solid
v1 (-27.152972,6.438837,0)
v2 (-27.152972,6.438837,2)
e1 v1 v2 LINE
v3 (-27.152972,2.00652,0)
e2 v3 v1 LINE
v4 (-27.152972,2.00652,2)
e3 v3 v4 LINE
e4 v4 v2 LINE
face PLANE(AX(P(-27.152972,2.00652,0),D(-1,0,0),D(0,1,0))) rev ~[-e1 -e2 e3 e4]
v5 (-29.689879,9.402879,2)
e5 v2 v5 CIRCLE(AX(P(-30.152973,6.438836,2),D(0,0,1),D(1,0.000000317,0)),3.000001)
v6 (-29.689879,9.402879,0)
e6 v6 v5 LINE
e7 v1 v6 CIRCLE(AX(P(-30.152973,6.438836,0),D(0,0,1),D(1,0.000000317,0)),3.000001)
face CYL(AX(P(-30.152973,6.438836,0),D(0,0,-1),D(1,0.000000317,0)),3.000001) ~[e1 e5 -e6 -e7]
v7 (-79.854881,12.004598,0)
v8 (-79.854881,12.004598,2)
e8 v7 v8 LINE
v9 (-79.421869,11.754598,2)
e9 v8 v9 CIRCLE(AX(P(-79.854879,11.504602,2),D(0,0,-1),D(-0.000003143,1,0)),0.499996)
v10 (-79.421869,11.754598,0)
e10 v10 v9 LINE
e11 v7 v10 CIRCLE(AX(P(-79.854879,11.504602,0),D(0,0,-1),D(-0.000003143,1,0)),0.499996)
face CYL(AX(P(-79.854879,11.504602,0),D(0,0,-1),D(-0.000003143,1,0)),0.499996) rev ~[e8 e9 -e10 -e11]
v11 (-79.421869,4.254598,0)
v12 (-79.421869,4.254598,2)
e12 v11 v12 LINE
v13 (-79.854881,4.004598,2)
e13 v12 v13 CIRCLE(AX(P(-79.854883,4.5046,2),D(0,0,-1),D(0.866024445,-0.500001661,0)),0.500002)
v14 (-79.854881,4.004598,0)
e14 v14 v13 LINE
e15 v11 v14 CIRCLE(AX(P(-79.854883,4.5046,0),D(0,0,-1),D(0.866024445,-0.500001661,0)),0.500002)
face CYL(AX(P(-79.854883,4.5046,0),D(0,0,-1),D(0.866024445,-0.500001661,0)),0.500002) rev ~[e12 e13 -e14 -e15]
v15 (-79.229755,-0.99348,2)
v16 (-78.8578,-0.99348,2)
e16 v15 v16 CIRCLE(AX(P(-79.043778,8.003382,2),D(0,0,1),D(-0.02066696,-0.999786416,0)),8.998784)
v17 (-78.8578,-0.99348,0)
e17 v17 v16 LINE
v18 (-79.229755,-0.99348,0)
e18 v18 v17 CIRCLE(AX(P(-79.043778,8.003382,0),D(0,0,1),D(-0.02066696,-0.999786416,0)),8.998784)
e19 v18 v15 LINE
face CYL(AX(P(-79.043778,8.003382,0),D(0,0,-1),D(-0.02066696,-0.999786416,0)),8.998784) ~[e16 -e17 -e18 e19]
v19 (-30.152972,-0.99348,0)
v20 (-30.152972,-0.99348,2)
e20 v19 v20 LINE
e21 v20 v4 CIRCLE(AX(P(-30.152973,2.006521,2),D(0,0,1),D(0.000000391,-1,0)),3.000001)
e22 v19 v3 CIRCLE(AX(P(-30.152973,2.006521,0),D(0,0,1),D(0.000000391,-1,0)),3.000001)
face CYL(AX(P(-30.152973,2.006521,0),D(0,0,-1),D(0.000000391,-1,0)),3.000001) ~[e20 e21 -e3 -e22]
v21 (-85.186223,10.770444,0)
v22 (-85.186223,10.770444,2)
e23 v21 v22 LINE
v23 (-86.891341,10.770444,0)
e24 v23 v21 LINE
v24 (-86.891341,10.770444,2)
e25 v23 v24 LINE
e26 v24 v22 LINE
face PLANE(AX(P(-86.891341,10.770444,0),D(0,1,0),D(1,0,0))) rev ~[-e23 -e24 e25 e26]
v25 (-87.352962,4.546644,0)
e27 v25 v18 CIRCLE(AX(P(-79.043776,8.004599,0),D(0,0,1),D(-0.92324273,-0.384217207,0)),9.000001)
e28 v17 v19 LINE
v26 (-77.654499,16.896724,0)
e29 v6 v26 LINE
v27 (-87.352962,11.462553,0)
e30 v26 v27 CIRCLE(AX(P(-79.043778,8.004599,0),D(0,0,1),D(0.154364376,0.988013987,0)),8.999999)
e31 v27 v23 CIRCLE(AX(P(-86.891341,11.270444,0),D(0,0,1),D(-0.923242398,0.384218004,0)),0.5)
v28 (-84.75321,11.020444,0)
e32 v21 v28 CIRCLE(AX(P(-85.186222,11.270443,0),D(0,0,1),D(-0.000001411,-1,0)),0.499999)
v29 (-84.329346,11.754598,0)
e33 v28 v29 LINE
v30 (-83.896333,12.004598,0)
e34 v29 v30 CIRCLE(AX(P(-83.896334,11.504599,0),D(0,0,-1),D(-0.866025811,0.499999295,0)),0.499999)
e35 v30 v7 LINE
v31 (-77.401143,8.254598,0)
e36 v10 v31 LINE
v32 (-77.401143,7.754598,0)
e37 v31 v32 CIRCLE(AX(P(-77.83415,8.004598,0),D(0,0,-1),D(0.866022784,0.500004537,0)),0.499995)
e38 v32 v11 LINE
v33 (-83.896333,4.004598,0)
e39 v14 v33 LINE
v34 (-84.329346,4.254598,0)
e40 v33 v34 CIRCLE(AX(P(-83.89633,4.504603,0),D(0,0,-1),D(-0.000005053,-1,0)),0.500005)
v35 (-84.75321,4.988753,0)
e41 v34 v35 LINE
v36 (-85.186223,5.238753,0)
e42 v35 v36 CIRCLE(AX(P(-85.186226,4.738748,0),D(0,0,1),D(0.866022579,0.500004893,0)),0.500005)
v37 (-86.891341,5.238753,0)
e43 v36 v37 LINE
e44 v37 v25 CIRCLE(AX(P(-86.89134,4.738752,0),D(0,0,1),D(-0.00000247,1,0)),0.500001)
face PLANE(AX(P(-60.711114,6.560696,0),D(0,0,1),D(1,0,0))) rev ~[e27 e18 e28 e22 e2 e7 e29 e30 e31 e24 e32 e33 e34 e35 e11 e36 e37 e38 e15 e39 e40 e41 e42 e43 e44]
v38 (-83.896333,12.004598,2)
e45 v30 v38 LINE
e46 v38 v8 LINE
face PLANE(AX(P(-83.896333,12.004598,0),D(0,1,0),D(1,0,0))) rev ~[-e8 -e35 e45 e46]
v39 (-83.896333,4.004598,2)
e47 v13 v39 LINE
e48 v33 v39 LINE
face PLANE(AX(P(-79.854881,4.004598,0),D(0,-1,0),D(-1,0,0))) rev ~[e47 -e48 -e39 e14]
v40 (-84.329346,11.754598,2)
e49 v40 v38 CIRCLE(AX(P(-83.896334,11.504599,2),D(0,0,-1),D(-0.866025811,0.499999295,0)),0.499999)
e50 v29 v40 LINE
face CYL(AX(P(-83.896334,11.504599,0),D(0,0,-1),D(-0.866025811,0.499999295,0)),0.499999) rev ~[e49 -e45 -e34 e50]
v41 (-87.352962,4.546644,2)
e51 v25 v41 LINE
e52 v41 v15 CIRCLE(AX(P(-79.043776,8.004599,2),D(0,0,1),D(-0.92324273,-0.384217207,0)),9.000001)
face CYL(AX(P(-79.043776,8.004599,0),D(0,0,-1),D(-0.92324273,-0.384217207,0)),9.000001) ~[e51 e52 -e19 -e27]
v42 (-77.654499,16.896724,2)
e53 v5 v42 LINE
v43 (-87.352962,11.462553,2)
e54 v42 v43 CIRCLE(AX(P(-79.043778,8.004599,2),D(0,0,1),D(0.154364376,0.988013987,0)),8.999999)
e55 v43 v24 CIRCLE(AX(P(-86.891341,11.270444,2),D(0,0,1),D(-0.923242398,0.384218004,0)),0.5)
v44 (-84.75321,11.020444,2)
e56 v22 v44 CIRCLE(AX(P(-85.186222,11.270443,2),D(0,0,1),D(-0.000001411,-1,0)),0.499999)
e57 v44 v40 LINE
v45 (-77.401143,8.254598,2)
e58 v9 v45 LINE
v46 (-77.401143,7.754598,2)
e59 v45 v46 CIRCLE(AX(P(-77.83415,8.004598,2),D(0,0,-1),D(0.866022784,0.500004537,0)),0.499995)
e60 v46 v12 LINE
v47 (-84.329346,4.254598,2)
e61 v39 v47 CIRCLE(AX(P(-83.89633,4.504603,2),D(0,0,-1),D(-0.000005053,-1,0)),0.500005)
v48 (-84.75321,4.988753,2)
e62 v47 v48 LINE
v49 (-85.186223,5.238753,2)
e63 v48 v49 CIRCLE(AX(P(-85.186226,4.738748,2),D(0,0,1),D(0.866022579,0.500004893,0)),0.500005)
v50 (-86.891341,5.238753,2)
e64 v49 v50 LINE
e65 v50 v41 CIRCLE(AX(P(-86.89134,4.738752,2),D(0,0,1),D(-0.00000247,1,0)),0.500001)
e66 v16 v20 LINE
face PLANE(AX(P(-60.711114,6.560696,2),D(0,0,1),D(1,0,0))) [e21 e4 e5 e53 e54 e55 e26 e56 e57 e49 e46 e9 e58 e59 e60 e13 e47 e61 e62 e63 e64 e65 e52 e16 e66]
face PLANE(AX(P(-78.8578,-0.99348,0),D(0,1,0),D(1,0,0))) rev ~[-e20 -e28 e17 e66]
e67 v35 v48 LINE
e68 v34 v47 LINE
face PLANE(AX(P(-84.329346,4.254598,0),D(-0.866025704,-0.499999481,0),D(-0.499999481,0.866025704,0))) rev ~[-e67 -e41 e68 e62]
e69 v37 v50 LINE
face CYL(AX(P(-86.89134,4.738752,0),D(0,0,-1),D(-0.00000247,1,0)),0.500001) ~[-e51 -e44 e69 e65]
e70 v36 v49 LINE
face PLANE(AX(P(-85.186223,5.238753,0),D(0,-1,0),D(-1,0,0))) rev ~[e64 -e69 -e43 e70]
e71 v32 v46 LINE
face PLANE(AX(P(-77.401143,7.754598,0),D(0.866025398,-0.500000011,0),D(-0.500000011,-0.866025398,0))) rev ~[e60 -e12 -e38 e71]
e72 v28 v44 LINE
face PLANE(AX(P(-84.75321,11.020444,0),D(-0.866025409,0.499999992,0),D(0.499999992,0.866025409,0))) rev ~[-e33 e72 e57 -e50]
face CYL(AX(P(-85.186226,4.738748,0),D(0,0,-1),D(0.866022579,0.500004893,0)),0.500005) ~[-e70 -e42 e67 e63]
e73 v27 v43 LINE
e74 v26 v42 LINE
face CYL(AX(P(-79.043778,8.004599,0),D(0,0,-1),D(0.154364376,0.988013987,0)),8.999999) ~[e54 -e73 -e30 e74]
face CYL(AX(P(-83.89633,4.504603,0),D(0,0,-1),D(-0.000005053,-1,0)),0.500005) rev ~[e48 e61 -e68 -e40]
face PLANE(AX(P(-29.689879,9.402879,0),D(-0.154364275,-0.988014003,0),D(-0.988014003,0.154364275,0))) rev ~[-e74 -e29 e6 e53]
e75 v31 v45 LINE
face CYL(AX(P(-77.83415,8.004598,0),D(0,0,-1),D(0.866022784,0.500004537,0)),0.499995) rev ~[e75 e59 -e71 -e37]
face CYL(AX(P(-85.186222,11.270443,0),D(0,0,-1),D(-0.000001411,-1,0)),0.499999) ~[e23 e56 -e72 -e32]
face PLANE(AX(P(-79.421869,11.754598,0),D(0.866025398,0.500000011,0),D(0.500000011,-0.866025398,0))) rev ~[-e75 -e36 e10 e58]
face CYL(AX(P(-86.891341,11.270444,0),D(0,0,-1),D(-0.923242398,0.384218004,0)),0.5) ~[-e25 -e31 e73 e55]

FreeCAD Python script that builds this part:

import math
import FreeCAD as App
import Part
import Sketcher
Q = App.Units.Quantity

doc = App.newDocument("Part")
body = doc.addObject("PartDesign::Body", "Body")

# Sketch on XY plane
sketch1 = body.newObject("Sketcher::SketchObject", "Sketch")
sketch1.AttachmentSupport = (doc.getObject("XY_Plane"), [""])
sketch1.MapMode = "FlatFace"
sketch1.addGeometry(Part.ArcOfCircle(Part.Circle(App.Vector(-79.85, 4.5, 0), App.Vector(0, 0, 1), 0.5), math.radians(-90), math.radians(-30)), False)
sketch1.addGeometry(Part.LineSegment(App.Vector(-79.85, 4, 0), App.Vector(-83.9, 4, 0)), False)
sketch1.addGeometry(Part.ArcOfCircle(Part.Circle(App.Vector(-83.9, 4.5, 0), App.Vector(0, 0, 1), 0.5), math.radians(-150), math.radians(-90)), False)
sketch1.addGeometry(Part.LineSegment(App.Vector(-84.33, 4.25, 0), App.Vector(-84.75, 4.99, 0)), False)
sketch1.addGeometry(Part.ArcOfCircle(Part.Circle(App.Vector(-85.19, 4.74, 0), App.Vector(0, 0, 1), 0.5), math.radians(30), math.radians(90)), False)
sketch1.addGeometry(Part.LineSegment(App.Vector(-85.19, 5.24, 0), App.Vector(-86.89, 5.24, 0)), False)
sketch1.addGeometry(Part.ArcOfCircle(Part.Circle(App.Vector(-86.89, 4.74, 0), App.Vector(0, 0, 1), 0.5), math.radians(90), math.radians(203)), False)
sketch1.addGeometry(Part.ArcOfCircle(Part.Circle(App.Vector(-79.04, 8, 0), App.Vector(0, 0, 1), 9), math.radians(-157), math.radians(-91)), False)
sketch1.addGeometry(Part.ArcOfCircle(Part.Circle(App.Vector(-79.04, 8, 0), App.Vector(0, 0, 1), 9), math.radians(-91.18), math.radians(-88.82)), False)
sketch1.addGeometry(Part.LineSegment(App.Vector(-78.86, -0.99, 0), App.Vector(-30.15, -0.99, 0)), False)
sketch1.addGeometry(Part.ArcOfCircle(Part.Circle(App.Vector(-30.15, 2.01, 0), App.Vector(0, 0, 1), 3), math.radians(-90), math.radians(0)), False)
sketch1.addGeometry(Part.LineSegment(App.Vector(-27.15, 2.01, 0), App.Vector(-27.15, 6.44, 0)), False)
sketch1.addGeometry(Part.ArcOfCircle(Part.Circle(App.Vector(-30.15, 6.44, 0), App.Vector(0, 0, 1), 3), math.radians(0), math.radians(81)), False)
sketch1.addGeometry(Part.LineSegment(App.Vector(-29.69, 9.4, 0), App.Vector(-77.65, 16.9, 0)), False)
sketch1.addGeometry(Part.ArcOfCircle(Part.Circle(App.Vector(-79.04, 8, 0), App.Vector(0, 0, 1), 9), math.radians(81), math.radians(157)), False)
sketch1.addGeometry(Part.ArcOfCircle(Part.Circle(App.Vector(-86.89, 11.27, 0), App.Vector(0, 0, 1), 0.5), math.radians(157), math.radians(270)), False)
sketch1.addGeometry(Part.LineSegment(App.Vector(-86.89, 10.77, 0), App.Vector(-85.19, 10.77, 0)), False)
sketch1.addGeometry(Part.ArcOfCircle(Part.Circle(App.Vector(-85.19, 11.27, 0), App.Vector(0, 0, 1), 0.5), math.radians(-90), math.radians(-30)), False)
sketch1.addGeometry(Part.LineSegment(App.Vector(-84.75, 11.02, 0), App.Vector(-84.33, 11.75, 0)), False)
sketch1.addGeometry(Part.ArcOfCircle(Part.Circle(App.Vector(-83.9, 11.5, 0), App.Vector(0, 0, 1), 0.5), math.radians(90), math.radians(150)), False)
sketch1.addGeometry(Part.LineSegment(App.Vector(-83.9, 12, 0), App.Vector(-79.85, 12, 0)), False)
sketch1.addGeometry(Part.ArcOfCircle(Part.Circle(App.Vector(-79.85, 11.5, 0), App.Vector(0, 0, 1), 0.5), math.radians(30), math.radians(90)), False)
sketch1.addGeometry(Part.LineSegment(App.Vector(-79.42, 11.75, 0), App.Vector(-77.4, 8.25, 0)), False)
sketch1.addGeometry(Part.ArcOfCircle(Part.Circle(App.Vector(-77.83, 8, 0), App.Vector(0, 0, 1), 0.5), math.radians(-30), math.radians(30)), False)
sketch1.addGeometry(Part.LineSegment(App.Vector(-77.4, 7.75, 0), App.Vector(-79.42, 4.25, 0)), False)
sketch1.addConstraint(Sketcher.Constraint("Coincident", 0, 1, 1, 1))
sketch1.addConstraint(Sketcher.Constraint("Coincident", 1, 2, 2, 2))
sketch1.addConstraint(Sketcher.Constraint("Coincident", 2, 1, 3, 1))
sketch1.addConstraint(Sketcher.Constraint("Coincident", 3, 2, 4, 1))
sketch1.addConstraint(Sketcher.Constraint("Coincident", 4, 2, 5, 1))
sketch1.addConstraint(Sketcher.Constraint("Coincident", 5, 2, 6, 1))
sketch1.addConstraint(Sketcher.Constraint("Tangent", 6, 2, 7, 1))
sketch1.addConstraint(Sketcher.Constraint("Coincident", 7, 2, 8, 1))
sketch1.addConstraint(Sketcher.Constraint("Coincident", 8, 2, 9, 1))
sketch1.addConstraint(Sketcher.Constraint("Tangent", 9, 2, 10, 1))
sketch1.addConstraint(Sketcher.Constraint("Tangent", 10, 2, 11, 1))
sketch1.addConstraint(Sketcher.Constraint("Tangent", 11, 2, 12, 1))
sketch1.addConstraint(Sketcher.Constraint("Tangent", 12, 2, 13, 1))
sketch1.addConstraint(Sketcher.Constraint("Tangent", 13, 2, 14, 1))
sketch1.addConstraint(Sketcher.Constraint("Tangent", 14, 2, 15, 1))
sketch1.addConstraint(Sketcher.Constraint("Tangent", 15, 2, 16, 1))
sketch1.addConstraint(Sketcher.Constraint("Tangent", 16, 2, 17, 1))
sketch1.addConstraint(Sketcher.Constraint("Tangent", 17, 2, 18, 1))
sketch1.addConstraint(Sketcher.Constraint("Tangent", 18, 2, 19, 2))
sketch1.addConstraint(Sketcher.Constraint("Tangent", 19, 1, 20, 1))
sketch1.addConstraint(Sketcher.Constraint("Coincident", 20, 2, 21, 2))
sketch1.addConstraint(Sketcher.Constraint("Coincident", 21, 1, 22, 1))
sketch1.addConstraint(Sketcher.Constraint("Coincident", 22, 2, 23, 2))
sketch1.addConstraint(Sketcher.Constraint("Coincident", 23, 1, 24, 1))
sketch1.addConstraint(Sketcher.Constraint("Tangent", 24, 2, 0, 2))
sketch1.addConstraint(Sketcher.Constraint("Horizontal", 1))
sketch1.addConstraint(Sketcher.Constraint("Horizontal", 5))
sketch1.addConstraint(Sketcher.Constraint("Horizontal", 9))
sketch1.addConstraint(Sketcher.Constraint("Vertical", 11))
sketch1.addConstraint(Sketcher.Constraint("Horizontal", 16))
sketch1.addConstraint(Sketcher.Constraint("Horizontal", 20))
sketch1.addConstraint(Sketcher.Constraint("Coincident", 14, 3, 7, 3))
sketch1.addConstraint(Sketcher.Constraint("Equal", 2, 4))
sketch1.addConstraint(Sketcher.Constraint("Equal", 0, 6))
sketch1.addConstraint(Sketcher.Constraint("Equal", 10, 12))
sketch1.addConstraint(Sketcher.Constraint("Equal", 6, 15))
sketch1.addConstraint(Sketcher.Constraint("Equal", 15, 17))
sketch1.addConstraint(Sketcher.Constraint("Equal", 17, 19))
sketch1.addConstraint(Sketcher.Constraint("Equal", 21, 23))
sketch1.addConstraint(Sketcher.Constraint("Parallel", 3, 22))
sketch1.addConstraint(Sketcher.Constraint("Parallel", 18, 24))
sketch1.addConstraint(Sketcher.Constraint("Horizontal", 14, 3, 23, 3))
sketch1.addConstraint(Sketcher.Constraint("Horizontal", 7, 2, 8, 2))
sketch1.addConstraint(Sketcher.Constraint("Horizontal", 18, 2, 21, 1))
sketch1.addConstraint(Sketcher.Constraint("Horizontal", 2, 1, 24, 2))
sketch1.addConstraint(Sketcher.Constraint("Vertical", 7, 3, 8, 3))
sketch1.addConstraint(Sketcher.Constraint("Vertical", 6, 3, 15, 3))
sketch1.addConstraint(Sketcher.Constraint("Vertical", 21, 3, 0, 1))
sketch1.addConstraint(Sketcher.Constraint("Vertical", 19, 3, 1, 2))
sketch1.addConstraint(Sketcher.Constraint("Vertical", 17, 3, 4, 2))
sketch1.addConstraint(Sketcher.Constraint("Vertical", 15, 3, 5, 2))
sketch1.addConstraint(Sketcher.Constraint("Vertical", 6, 2, 14, 2))
sketch1.addConstraint(Sketcher.Constraint("Vertical", 3, 2, 17, 2))
sketch1.addConstraint(Sketcher.Constraint("Vertical", 2, 1, 18, 2))
sketch1.addConstraint(Sketcher.Constraint("Vertical", 0, 1, 20, 2))
sketch1.addConstraint(Sketcher.Constraint("Vertical", 22, 2, 23, 1))
sketch1.addConstraint(Sketcher.Constraint("Vertical", 21, 1, 24, 2))
sketch1.addConstraint(Sketcher.Constraint("Equal", 3, 18))
sketch1.addConstraint(Sketcher.Constraint("Radius", 7, Q("9.000001 mm")))
sketch1.addConstraint(Sketcher.Constraint("Radius", 10, Q("3.000001 mm")))
sketch1.addConstraint(Sketcher.Constraint("Radius", 0, Q("0.500002 mm")))
sketch1.addConstraint(Sketcher.Constraint("Angle", 18, Q("60.000001 deg")))
sketch1.addConstraint(Sketcher.Constraint("DistanceY", 0, 1, 14, 3, Q("4.000001 mm")))
sketch1.addConstraint(Sketcher.Constraint("DistanceY", 22, 2, 21, 1, Q("3.5 mm")))
sketch1.addConstraint(Sketcher.Constraint("Radius", 2, Q("0.500005 mm")))
sketch1.addConstraint(Sketcher.Constraint("Radius", 8, Q("8.998784 mm")))
sketch1.addConstraint(Sketcher.Constraint("Radius", 21, Q("0.499996 mm")))
sketch1.addConstraint(Sketcher.Constraint("Distance", 13, Q("48.546498 mm")))
sketch1.addConstraint(Sketcher.Constraint("DistanceX", 1, 2, 1, 1, Q("4.041452 mm")))
sketch1.addConstraint(Sketcher.Constraint("DistanceY", -1, 1, 0, 3, Q("4.5046 mm")))
sketch1.addConstraint(Sketcher.Constraint("DistanceX", 8, 2, -1, 1, Q("78.8578 mm")))
sketch1.addConstraint(Sketcher.Constraint("DistanceX", 13, 2, -1, 1, Q("77.654499 mm")))
sketch1.addConstraint(Sketcher.Constraint("DistanceX", 21, 3, 14, 3, Q("0.811101 mm")))
sketch1.addConstraint(Sketcher.Constraint("DistanceY", 5, 2, 14, 2, Q("6.2238 mm")))
sketch1.addConstraint(Sketcher.Constraint("DistanceX", 9, 1, 9, 2, Q("48.704828 mm")))
pad1 = body.newObject("PartDesign::Pad", "Pad")
pad1.Profile = sketch1
pad1.Length = 2

doc.recompute()
